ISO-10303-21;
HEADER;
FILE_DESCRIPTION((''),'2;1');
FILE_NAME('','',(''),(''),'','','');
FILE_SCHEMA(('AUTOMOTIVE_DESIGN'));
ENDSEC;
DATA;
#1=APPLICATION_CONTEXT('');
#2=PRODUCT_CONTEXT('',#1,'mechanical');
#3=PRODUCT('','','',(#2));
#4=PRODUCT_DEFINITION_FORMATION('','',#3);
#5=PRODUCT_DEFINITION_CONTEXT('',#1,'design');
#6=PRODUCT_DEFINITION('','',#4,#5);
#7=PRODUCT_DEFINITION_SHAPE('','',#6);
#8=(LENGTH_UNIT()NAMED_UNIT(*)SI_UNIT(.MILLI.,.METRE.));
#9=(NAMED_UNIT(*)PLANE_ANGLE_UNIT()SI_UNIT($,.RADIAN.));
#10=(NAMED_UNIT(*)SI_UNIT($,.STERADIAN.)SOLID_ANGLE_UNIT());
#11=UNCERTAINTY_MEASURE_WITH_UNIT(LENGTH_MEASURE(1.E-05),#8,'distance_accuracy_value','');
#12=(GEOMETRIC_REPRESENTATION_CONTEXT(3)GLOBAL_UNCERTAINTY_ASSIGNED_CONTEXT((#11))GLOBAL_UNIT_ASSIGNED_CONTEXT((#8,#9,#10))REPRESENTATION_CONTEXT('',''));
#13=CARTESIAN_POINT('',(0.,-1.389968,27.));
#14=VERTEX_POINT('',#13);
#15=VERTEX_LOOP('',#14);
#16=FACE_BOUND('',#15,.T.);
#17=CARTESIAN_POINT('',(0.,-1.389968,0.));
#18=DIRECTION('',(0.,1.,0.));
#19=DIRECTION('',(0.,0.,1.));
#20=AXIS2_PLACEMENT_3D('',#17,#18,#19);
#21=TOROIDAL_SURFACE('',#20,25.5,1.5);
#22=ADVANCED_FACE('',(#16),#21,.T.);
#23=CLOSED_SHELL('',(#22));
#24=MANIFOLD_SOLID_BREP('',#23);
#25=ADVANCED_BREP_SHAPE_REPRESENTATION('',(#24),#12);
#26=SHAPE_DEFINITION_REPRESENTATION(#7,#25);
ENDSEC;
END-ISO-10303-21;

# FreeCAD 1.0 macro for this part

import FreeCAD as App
import Part
import Sketcher

V = App.Vector
Q = App.Units.Quantity

doc = App.newDocument("Part")
body = doc.addObject("PartDesign::Body", "Body")

sketch1 = doc.addObject("Sketcher::SketchObject", "Sketch")
body.addObject(sketch1)
sketch1.AttachmentSupport = (doc.XY_Plane, [""])
sketch1.MapMode = "FlatFace"
sketch1.addGeometry(Part.Circle(V(-25.5, -1.4, 0), V(0, 0, 1), 1.5), False)
sketch1.addConstraint([
    Sketcher.Constraint("Diameter", 0, Q("3 mm")),
    Sketcher.Constraint("DistanceX", 0, 3, -1, 1, Q("25.5 mm")),
    Sketcher.Constraint("DistanceY", 0, 3, -1, 1, Q("1.389968 mm")),
])
revolution = doc.addObject("PartDesign::Revolution", "Revolution")
body.addObject(revolution)
revolution.Profile = sketch1
revolution.ReferenceAxis = (sketch1, ["V_Axis"])
revolution.Angle = 360

doc.recompute()
